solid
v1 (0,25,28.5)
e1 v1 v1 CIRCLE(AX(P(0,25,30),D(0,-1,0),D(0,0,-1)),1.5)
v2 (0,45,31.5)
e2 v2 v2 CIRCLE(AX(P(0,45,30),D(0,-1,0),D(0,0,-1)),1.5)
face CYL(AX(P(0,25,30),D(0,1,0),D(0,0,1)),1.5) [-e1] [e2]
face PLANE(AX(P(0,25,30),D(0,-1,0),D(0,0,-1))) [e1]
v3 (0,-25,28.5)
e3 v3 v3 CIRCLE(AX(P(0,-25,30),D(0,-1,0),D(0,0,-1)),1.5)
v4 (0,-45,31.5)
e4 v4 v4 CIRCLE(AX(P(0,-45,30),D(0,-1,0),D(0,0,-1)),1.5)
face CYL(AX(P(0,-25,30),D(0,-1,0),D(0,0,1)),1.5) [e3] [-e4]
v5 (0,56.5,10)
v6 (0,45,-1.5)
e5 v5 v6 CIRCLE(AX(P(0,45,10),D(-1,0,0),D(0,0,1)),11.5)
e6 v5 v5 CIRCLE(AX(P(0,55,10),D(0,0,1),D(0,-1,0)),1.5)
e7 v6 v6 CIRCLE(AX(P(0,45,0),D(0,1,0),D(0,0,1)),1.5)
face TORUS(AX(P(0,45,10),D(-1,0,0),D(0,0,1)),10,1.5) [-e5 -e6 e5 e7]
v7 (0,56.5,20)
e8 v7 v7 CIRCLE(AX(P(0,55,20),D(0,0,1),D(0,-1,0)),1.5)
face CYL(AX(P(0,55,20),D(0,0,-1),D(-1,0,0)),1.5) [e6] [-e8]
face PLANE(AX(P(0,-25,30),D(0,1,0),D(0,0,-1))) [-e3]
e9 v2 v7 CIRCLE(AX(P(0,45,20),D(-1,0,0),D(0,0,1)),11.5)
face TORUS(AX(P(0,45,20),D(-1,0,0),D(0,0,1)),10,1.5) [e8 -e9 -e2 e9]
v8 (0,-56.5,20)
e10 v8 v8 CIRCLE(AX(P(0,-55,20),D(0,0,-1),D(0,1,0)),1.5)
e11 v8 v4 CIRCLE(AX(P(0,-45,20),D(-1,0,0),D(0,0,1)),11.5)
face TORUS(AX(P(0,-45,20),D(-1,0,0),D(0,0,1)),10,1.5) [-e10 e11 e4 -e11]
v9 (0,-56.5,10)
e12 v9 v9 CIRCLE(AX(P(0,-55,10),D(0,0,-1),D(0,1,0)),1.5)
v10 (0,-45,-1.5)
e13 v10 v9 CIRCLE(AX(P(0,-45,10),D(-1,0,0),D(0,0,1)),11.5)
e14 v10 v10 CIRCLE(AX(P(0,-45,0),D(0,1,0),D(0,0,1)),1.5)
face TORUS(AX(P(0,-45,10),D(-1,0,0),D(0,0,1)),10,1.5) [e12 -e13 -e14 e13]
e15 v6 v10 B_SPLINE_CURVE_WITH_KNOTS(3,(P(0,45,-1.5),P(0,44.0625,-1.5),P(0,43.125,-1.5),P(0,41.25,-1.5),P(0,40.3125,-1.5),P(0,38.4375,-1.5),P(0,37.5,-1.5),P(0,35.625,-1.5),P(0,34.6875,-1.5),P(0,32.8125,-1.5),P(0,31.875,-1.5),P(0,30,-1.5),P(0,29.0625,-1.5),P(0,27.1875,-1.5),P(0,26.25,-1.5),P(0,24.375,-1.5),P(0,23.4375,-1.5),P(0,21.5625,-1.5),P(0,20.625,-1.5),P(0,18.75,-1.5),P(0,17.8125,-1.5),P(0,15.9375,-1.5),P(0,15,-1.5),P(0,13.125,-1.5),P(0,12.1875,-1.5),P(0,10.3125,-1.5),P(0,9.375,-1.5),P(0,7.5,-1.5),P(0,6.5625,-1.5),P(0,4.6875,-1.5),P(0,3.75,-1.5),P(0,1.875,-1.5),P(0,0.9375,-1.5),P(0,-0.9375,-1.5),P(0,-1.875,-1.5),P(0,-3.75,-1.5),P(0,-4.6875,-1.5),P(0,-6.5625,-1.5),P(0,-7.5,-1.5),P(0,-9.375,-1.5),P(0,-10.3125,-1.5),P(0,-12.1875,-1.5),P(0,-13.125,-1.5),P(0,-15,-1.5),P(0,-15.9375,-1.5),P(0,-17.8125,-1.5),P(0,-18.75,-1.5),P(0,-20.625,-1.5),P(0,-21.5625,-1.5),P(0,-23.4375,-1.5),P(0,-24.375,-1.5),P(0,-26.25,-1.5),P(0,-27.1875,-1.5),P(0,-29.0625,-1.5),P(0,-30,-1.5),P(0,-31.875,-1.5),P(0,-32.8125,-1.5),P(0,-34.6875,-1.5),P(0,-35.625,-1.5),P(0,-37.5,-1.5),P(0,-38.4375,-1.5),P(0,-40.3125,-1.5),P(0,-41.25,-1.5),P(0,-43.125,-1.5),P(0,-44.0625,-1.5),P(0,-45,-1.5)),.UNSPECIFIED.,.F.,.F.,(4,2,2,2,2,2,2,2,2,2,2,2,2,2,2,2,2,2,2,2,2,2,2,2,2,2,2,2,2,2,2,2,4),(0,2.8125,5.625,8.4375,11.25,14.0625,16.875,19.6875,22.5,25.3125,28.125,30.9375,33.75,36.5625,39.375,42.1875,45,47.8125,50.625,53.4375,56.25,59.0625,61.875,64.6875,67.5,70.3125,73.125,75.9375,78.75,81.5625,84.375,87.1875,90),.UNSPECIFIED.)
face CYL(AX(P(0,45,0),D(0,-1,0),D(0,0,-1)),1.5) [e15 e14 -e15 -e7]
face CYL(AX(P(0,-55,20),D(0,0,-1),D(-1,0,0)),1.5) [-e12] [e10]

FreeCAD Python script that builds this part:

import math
import FreeCAD as App
import Part
import Sketcher
from FreeCAD import Vector
Q = App.Units.Quantity

doc = App.newDocument("Part")
params = doc.addObject("Spreadsheet::Sheet", "Params")
for row, (alias, value) in enumerate([
    ("sketch1_diameter", "3 mm"),
    ("sketch2_radius", "10 mm"),
    ("sketch2_width", "45 mm"),
    ("sketch2_width2", "20 mm"),
    ("sketch2_height", "10 mm"),
], start=1):
    params.set(f"A{row}", alias)
    params.set(f"B{row}", "=" + value)
    params.setAlias(f"B{row}", alias)

body = doc.addObject("PartDesign::Body", "Body")

sketch1 = body.newObject("Sketcher::SketchObject", "Sketch")
sketch1.AttachmentSupport = (doc.getObject("XZ_Plane"), [""])
sketch1.MapMode = "FlatFace"
sketch1.addGeometry(Part.Circle(Vector(0, 0, 0), Vector(0, 0, 1), 1.5), False)
sketch1.addConstraint([
    Sketcher.Constraint("Coincident", 0, 3, -1, 1),
    Sketcher.Constraint("Diameter", 0, Q("3 mm")),
])
sketch1.setExpression("Constraints[1]", "Params.sketch1_diameter")

sketch2 = body.newObject("Sketcher::SketchObject", "Sketch001")
sketch2.AttachmentSupport = (doc.getObject("YZ_Plane"), [""])
sketch2.MapMode = "FlatFace"
sketch2.addGeometry([
    Part.LineSegment(Vector(0, 0, 0), Vector(45, 0, 0)),
    Part.ArcOfCircle(Part.Circle(Vector(45, 10, 0), Vector(0, 0, 1), 10), math.radians(-90), math.radians(0)),
    Part.LineSegment(Vector(55, 10, 0), Vector(55, 20, 0)),
    Part.ArcOfCircle(Part.Circle(Vector(45, 20, 0), Vector(0, 0, 1), 10), math.radians(0), math.radians(90)),
    Part.LineSegment(Vector(45, 30, 0), Vector(25, 30, 0)),
], False)
sketch2.addConstraint([
    Sketcher.Constraint("Tangent", 0, 2, 1, 1),
    Sketcher.Constraint("Tangent", 1, 2, 2, 1),
    Sketcher.Constraint("Tangent", 2, 2, 3, 1),
    Sketcher.Constraint("Tangent", 3, 2, 4, 1),
    Sketcher.Constraint("Horizontal", 0),
    Sketcher.Constraint("Vertical", 2),
    Sketcher.Constraint("Horizontal", 4),
    Sketcher.Constraint("Coincident", 0, 1, -1, 1),
    Sketcher.Constraint("Equal", 1, 3),
    Sketcher.Constraint("Radius", 1, Q("10 mm")),
    Sketcher.Constraint("DistanceX", 0, 1, 0, 2, Q("45 mm")),
    Sketcher.Constraint("DistanceX", 4, 2, 4, 1, Q("20 mm")),
    Sketcher.Constraint("DistanceY", 2, 1, 2, 2, Q("10 mm")),
])
sketch2.setExpression("Constraints[9]", "Params.sketch2_radius")
sketch2.setExpression("Constraints[10]", "Params.sketch2_width")
sketch2.setExpression("Constraints[11]", "Params.sketch2_width2")
sketch2.setExpression("Constraints[12]", "Params.sketch2_height")
doc.recompute()

additivepipe = body.newObject("PartDesign::AdditivePipe", "AdditivePipe")
additivepipe.Profile = sketch1
additivepipe.Spine = (sketch2, ["Edge1", "Edge2", "Edge3", "Edge4", "Edge5"])
body2 = doc.addObject("PartDesign::Body", "Body001")
doc.recompute()

body2.BaseFeature = body
doc.recompute()

mirroring = doc.addObject("Part::Mirroring", "Mirroring")
mirroring.Source = body
mirroring.Base = Vector(0, 0, 0)
mirroring.Normal = Vector(0, 1, 0)
body3 = doc.addObject("PartDesign::Body", "Body002")
body3.BaseFeature = mirroring
boolean = body2.newObject("PartDesign::Boolean", "Boolean")
boolean.Type = "Fuse"
boolean.addObjects([body3])
doc.recompute()
mirroring.Visibility = False

doc.recompute()
